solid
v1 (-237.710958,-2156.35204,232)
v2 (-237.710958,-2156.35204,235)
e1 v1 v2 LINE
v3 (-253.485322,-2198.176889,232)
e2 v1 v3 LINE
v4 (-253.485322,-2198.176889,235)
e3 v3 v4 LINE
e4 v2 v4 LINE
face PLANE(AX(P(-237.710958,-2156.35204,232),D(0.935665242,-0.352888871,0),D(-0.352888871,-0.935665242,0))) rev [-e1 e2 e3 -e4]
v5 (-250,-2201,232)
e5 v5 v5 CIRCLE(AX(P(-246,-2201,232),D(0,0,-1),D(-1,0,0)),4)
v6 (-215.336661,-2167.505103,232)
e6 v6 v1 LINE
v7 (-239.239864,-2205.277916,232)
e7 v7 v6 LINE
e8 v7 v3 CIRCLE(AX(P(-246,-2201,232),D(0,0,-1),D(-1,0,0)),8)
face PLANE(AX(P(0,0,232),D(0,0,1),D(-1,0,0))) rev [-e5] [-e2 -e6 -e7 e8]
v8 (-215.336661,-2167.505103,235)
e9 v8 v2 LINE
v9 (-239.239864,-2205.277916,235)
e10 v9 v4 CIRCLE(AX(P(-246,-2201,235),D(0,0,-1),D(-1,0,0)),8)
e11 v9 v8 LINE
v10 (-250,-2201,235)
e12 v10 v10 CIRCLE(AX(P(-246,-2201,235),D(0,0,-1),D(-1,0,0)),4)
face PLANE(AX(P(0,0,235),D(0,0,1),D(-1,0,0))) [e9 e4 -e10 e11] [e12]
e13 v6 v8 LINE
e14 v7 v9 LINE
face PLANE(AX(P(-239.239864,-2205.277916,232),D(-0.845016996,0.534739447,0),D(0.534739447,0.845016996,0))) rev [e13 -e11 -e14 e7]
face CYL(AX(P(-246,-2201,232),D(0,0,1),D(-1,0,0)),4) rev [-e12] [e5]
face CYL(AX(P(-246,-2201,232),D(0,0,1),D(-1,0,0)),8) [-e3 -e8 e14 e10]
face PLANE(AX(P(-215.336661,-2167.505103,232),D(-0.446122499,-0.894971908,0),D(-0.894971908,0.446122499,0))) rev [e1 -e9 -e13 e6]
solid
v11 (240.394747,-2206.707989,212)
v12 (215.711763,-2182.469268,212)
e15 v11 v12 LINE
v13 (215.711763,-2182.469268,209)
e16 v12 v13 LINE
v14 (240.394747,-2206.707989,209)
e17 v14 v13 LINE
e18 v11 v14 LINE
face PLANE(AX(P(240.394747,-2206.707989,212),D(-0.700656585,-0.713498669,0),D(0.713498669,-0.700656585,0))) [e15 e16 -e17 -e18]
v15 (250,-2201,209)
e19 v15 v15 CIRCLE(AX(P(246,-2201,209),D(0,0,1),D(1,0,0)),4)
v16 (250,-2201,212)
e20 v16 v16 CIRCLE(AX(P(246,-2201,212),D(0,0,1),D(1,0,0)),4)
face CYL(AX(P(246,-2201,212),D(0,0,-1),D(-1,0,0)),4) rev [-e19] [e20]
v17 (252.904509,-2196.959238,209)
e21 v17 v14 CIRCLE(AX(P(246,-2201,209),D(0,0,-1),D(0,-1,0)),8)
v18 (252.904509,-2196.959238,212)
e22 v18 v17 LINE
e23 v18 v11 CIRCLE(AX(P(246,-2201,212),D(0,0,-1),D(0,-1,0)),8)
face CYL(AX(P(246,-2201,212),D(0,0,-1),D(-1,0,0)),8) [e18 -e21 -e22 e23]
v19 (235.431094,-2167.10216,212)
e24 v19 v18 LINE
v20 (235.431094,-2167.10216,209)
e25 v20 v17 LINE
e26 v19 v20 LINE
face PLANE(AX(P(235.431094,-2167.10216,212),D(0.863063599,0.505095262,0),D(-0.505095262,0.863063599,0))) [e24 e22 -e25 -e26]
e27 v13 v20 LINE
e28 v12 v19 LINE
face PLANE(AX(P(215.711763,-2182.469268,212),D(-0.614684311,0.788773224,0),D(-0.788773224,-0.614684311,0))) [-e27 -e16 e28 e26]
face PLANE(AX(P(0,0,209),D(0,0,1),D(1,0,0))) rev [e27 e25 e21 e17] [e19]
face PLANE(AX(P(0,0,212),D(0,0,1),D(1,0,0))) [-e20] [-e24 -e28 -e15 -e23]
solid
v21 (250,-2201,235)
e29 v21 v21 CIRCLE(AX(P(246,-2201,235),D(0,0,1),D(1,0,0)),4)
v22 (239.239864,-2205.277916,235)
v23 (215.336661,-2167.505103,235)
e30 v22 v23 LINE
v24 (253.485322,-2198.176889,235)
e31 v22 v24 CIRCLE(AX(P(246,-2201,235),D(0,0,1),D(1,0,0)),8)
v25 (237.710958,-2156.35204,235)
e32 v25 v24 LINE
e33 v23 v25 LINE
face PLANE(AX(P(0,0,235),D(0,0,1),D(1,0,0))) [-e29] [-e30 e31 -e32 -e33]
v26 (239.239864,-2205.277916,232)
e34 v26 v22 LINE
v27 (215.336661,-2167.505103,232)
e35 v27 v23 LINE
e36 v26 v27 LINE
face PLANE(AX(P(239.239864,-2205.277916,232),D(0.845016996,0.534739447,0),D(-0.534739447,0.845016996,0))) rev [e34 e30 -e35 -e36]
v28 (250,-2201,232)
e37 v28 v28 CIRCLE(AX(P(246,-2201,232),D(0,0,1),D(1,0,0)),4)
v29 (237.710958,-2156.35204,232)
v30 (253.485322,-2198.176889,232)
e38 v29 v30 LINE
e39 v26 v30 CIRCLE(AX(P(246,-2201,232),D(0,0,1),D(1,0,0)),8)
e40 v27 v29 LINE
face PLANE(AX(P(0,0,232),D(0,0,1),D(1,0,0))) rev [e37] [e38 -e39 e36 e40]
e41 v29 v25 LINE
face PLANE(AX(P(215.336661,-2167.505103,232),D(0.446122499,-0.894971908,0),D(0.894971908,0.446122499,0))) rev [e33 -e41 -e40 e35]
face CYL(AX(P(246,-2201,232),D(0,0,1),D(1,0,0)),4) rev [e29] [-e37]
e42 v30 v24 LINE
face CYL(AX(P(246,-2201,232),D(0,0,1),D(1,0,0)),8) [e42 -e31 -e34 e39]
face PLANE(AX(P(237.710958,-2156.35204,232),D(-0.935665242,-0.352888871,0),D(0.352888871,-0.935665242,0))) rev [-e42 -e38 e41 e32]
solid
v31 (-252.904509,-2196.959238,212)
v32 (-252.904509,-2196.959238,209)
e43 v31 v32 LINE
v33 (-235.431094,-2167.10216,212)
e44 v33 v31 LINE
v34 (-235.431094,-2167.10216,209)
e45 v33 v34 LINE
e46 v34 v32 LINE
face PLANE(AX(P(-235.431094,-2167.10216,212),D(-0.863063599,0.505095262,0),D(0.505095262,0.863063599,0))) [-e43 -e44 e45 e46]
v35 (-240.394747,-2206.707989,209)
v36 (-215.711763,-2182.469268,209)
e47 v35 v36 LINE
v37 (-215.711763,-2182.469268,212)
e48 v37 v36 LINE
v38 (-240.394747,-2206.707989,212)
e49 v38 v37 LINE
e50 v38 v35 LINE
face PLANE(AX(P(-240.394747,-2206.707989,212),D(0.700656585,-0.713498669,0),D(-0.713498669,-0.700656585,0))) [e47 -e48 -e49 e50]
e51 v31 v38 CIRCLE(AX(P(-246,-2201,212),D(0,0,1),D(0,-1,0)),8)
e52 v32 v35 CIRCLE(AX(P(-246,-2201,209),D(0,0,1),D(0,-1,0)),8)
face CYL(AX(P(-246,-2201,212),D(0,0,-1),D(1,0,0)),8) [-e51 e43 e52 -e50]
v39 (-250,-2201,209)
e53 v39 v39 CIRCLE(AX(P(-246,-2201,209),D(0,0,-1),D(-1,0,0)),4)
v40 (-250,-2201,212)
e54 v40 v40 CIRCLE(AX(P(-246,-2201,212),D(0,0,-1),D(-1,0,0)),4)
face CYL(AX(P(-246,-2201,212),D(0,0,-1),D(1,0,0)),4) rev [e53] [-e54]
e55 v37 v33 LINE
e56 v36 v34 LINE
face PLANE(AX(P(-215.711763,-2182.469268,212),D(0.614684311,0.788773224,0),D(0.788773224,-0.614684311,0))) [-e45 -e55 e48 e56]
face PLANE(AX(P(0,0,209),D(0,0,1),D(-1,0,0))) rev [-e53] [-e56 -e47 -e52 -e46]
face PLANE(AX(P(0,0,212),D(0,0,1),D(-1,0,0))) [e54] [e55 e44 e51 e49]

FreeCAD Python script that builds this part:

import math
import FreeCAD as App
import Part
import Sketcher
Q = App.Units.Quantity

doc = App.newDocument("Part")
body = doc.addObject("PartDesign::Body", "Body")

# Sketch on XY plane
sketch1 = doc.addObject("Sketcher::SketchObject", "Sketch")
body.addObject(sketch1)
sketch1.AttachmentSupport = (doc.XY_Plane, [""])
sketch1.MapMode = "FlatFace"
sketch1.AttachmentOffset = App.Placement(App.Vector(0, 0, 232), App.Rotation())
sketch1.addGeometry([
    Part.LineSegment(App.Vector(215.3, -2167.5, 0), App.Vector(239.2, -2205.3, 0)),  # 0
    Part.ArcOfCircle(Part.Circle(App.Vector(246, -2201, 0), App.Vector(0, 0, 1), 8), math.radians(-148), math.radians(21)),  # 1
    Part.LineSegment(App.Vector(253.5, -2198.2, 0), App.Vector(237.7, -2156.4, 0)),  # 2
    Part.LineSegment(App.Vector(237.7, -2156.4, 0), App.Vector(215.3, -2167.5, 0)),  # 3
    Part.Circle(App.Vector(246, -2201, 0), App.Vector(0, 0, 1), 4),  # 4
], False)
sketch1.addConstraint([
    Sketcher.Constraint("Tangent", 0, 2, 1, 1),
    Sketcher.Constraint("Tangent", 1, 2, 2, 1),
    Sketcher.Constraint("Coincident", 2, 2, 3, 1),
    Sketcher.Constraint("Coincident", 3, 2, 0, 1),
    Sketcher.Constraint("Coincident", 4, 3, 1, 3),
    Sketcher.Constraint("Equal", 0, 2),
    Sketcher.Constraint("Diameter", 4, Q("8 mm")),
    Sketcher.Constraint("Radius", 1, Q("8 mm")),
    Sketcher.Constraint("Distance", 3, Q("25 mm")),
    Sketcher.Constraint("DistanceX", -1, 1, 1, 3, Q("246 mm")),
    Sketcher.Constraint("DistanceY", 1, 3, -1, 1, Q("2201 mm")),
    Sketcher.Constraint("DistanceX", -1, 1, 1, 2, Q("253.485322 mm")),
    Sketcher.Constraint("DistanceX", -1, 1, 2, 2, Q("237.710958 mm")),
])
pad1 = doc.addObject("PartDesign::Pad", "Pad")
body.addObject(pad1)
pad1.Profile = sketch1
pad1.Length = 3
body2 = doc.addObject("PartDesign::Body", "Body001")

# Sketch on XY plane
sketch2 = doc.addObject("Sketcher::SketchObject", "Sketch001")
body2.addObject(sketch2)
sketch2.AttachmentSupport = (doc.getObject("XY_Plane001"), [""])
sketch2.MapMode = "FlatFace"
sketch2.AttachmentOffset = App.Placement(App.Vector(0, 0, 209), App.Rotation())
sketch2.addGeometry([
    Part.LineSegment(App.Vector(215.7, -2182.5, 0), App.Vector(240.4, -2206.7, 0)),  # 0
    Part.ArcOfCircle(Part.Circle(App.Vector(246, -2201, 0), App.Vector(0, 0, 1), 8), math.radians(-134), math.radians(30)),  # 1
    Part.LineSegment(App.Vector(252.9, -2197, 0), App.Vector(235.4, -2167.1, 0)),  # 2
    Part.LineSegment(App.Vector(235.4, -2167.1, 0), App.Vector(215.7, -2182.5, 0)),  # 3
    Part.Circle(App.Vector(246, -2201, 0), App.Vector(0, 0, 1), 4),  # 4
], False)
sketch2.addConstraint([
    Sketcher.Constraint("Tangent", 0, 2, 1, 1),
    Sketcher.Constraint("Tangent", 1, 2, 2, 1),
    Sketcher.Constraint("Coincident", 2, 2, 3, 1),
    Sketcher.Constraint("Coincident", 3, 2, 0, 1),
    Sketcher.Constraint("Coincident", 4, 3, 1, 3),
    Sketcher.Constraint("Equal", 0, 2),
    Sketcher.Constraint("Diameter", 4, Q("8 mm")),
    Sketcher.Constraint("Radius", 1, Q("8 mm")),
    Sketcher.Constraint("Distance", 3, Q("25 mm")),
    Sketcher.Constraint("DistanceX", -1, 1, 1, 3, Q("246 mm")),
    Sketcher.Constraint("DistanceY", 1, 3, -1, 1, Q("2201 mm")),
    Sketcher.Constraint("DistanceY", 0, 2, -1, 1, Q("2206.707989 mm")),
    Sketcher.Constraint("DistanceX", -1, 1, 1, 2, Q("252.904509 mm")),
])
pad2 = doc.addObject("PartDesign::Pad", "Pad001")
body2.addObject(pad2)
pad2.Profile = sketch2
pad2.Length = 3
body3 = doc.addObject("PartDesign::Body", "Body002")
doc.recompute()

mirroring = doc.addObject("Part::Mirroring", "Mirroring")
mirroring.Source = body
mirroring.Base = App.Vector(0, 0, 0)
mirroring.Normal = App.Vector(1, 0, 0)
body3.BaseFeature = mirroring
doc.recompute()
body4 = doc.addObject("PartDesign::Body", "Body003")
doc.recompute()

mirroring2 = doc.addObject("Part::Mirroring", "Mirroring001")
mirroring2.Source = body2
mirroring2.Base = App.Vector(0, 0, 0)
mirroring2.Normal = App.Vector(1, 0, 0)
body4.BaseFeature = mirroring2
doc.recompute()
mirroring.Visibility = False
mirroring2.Visibility = False

doc.recompute()
